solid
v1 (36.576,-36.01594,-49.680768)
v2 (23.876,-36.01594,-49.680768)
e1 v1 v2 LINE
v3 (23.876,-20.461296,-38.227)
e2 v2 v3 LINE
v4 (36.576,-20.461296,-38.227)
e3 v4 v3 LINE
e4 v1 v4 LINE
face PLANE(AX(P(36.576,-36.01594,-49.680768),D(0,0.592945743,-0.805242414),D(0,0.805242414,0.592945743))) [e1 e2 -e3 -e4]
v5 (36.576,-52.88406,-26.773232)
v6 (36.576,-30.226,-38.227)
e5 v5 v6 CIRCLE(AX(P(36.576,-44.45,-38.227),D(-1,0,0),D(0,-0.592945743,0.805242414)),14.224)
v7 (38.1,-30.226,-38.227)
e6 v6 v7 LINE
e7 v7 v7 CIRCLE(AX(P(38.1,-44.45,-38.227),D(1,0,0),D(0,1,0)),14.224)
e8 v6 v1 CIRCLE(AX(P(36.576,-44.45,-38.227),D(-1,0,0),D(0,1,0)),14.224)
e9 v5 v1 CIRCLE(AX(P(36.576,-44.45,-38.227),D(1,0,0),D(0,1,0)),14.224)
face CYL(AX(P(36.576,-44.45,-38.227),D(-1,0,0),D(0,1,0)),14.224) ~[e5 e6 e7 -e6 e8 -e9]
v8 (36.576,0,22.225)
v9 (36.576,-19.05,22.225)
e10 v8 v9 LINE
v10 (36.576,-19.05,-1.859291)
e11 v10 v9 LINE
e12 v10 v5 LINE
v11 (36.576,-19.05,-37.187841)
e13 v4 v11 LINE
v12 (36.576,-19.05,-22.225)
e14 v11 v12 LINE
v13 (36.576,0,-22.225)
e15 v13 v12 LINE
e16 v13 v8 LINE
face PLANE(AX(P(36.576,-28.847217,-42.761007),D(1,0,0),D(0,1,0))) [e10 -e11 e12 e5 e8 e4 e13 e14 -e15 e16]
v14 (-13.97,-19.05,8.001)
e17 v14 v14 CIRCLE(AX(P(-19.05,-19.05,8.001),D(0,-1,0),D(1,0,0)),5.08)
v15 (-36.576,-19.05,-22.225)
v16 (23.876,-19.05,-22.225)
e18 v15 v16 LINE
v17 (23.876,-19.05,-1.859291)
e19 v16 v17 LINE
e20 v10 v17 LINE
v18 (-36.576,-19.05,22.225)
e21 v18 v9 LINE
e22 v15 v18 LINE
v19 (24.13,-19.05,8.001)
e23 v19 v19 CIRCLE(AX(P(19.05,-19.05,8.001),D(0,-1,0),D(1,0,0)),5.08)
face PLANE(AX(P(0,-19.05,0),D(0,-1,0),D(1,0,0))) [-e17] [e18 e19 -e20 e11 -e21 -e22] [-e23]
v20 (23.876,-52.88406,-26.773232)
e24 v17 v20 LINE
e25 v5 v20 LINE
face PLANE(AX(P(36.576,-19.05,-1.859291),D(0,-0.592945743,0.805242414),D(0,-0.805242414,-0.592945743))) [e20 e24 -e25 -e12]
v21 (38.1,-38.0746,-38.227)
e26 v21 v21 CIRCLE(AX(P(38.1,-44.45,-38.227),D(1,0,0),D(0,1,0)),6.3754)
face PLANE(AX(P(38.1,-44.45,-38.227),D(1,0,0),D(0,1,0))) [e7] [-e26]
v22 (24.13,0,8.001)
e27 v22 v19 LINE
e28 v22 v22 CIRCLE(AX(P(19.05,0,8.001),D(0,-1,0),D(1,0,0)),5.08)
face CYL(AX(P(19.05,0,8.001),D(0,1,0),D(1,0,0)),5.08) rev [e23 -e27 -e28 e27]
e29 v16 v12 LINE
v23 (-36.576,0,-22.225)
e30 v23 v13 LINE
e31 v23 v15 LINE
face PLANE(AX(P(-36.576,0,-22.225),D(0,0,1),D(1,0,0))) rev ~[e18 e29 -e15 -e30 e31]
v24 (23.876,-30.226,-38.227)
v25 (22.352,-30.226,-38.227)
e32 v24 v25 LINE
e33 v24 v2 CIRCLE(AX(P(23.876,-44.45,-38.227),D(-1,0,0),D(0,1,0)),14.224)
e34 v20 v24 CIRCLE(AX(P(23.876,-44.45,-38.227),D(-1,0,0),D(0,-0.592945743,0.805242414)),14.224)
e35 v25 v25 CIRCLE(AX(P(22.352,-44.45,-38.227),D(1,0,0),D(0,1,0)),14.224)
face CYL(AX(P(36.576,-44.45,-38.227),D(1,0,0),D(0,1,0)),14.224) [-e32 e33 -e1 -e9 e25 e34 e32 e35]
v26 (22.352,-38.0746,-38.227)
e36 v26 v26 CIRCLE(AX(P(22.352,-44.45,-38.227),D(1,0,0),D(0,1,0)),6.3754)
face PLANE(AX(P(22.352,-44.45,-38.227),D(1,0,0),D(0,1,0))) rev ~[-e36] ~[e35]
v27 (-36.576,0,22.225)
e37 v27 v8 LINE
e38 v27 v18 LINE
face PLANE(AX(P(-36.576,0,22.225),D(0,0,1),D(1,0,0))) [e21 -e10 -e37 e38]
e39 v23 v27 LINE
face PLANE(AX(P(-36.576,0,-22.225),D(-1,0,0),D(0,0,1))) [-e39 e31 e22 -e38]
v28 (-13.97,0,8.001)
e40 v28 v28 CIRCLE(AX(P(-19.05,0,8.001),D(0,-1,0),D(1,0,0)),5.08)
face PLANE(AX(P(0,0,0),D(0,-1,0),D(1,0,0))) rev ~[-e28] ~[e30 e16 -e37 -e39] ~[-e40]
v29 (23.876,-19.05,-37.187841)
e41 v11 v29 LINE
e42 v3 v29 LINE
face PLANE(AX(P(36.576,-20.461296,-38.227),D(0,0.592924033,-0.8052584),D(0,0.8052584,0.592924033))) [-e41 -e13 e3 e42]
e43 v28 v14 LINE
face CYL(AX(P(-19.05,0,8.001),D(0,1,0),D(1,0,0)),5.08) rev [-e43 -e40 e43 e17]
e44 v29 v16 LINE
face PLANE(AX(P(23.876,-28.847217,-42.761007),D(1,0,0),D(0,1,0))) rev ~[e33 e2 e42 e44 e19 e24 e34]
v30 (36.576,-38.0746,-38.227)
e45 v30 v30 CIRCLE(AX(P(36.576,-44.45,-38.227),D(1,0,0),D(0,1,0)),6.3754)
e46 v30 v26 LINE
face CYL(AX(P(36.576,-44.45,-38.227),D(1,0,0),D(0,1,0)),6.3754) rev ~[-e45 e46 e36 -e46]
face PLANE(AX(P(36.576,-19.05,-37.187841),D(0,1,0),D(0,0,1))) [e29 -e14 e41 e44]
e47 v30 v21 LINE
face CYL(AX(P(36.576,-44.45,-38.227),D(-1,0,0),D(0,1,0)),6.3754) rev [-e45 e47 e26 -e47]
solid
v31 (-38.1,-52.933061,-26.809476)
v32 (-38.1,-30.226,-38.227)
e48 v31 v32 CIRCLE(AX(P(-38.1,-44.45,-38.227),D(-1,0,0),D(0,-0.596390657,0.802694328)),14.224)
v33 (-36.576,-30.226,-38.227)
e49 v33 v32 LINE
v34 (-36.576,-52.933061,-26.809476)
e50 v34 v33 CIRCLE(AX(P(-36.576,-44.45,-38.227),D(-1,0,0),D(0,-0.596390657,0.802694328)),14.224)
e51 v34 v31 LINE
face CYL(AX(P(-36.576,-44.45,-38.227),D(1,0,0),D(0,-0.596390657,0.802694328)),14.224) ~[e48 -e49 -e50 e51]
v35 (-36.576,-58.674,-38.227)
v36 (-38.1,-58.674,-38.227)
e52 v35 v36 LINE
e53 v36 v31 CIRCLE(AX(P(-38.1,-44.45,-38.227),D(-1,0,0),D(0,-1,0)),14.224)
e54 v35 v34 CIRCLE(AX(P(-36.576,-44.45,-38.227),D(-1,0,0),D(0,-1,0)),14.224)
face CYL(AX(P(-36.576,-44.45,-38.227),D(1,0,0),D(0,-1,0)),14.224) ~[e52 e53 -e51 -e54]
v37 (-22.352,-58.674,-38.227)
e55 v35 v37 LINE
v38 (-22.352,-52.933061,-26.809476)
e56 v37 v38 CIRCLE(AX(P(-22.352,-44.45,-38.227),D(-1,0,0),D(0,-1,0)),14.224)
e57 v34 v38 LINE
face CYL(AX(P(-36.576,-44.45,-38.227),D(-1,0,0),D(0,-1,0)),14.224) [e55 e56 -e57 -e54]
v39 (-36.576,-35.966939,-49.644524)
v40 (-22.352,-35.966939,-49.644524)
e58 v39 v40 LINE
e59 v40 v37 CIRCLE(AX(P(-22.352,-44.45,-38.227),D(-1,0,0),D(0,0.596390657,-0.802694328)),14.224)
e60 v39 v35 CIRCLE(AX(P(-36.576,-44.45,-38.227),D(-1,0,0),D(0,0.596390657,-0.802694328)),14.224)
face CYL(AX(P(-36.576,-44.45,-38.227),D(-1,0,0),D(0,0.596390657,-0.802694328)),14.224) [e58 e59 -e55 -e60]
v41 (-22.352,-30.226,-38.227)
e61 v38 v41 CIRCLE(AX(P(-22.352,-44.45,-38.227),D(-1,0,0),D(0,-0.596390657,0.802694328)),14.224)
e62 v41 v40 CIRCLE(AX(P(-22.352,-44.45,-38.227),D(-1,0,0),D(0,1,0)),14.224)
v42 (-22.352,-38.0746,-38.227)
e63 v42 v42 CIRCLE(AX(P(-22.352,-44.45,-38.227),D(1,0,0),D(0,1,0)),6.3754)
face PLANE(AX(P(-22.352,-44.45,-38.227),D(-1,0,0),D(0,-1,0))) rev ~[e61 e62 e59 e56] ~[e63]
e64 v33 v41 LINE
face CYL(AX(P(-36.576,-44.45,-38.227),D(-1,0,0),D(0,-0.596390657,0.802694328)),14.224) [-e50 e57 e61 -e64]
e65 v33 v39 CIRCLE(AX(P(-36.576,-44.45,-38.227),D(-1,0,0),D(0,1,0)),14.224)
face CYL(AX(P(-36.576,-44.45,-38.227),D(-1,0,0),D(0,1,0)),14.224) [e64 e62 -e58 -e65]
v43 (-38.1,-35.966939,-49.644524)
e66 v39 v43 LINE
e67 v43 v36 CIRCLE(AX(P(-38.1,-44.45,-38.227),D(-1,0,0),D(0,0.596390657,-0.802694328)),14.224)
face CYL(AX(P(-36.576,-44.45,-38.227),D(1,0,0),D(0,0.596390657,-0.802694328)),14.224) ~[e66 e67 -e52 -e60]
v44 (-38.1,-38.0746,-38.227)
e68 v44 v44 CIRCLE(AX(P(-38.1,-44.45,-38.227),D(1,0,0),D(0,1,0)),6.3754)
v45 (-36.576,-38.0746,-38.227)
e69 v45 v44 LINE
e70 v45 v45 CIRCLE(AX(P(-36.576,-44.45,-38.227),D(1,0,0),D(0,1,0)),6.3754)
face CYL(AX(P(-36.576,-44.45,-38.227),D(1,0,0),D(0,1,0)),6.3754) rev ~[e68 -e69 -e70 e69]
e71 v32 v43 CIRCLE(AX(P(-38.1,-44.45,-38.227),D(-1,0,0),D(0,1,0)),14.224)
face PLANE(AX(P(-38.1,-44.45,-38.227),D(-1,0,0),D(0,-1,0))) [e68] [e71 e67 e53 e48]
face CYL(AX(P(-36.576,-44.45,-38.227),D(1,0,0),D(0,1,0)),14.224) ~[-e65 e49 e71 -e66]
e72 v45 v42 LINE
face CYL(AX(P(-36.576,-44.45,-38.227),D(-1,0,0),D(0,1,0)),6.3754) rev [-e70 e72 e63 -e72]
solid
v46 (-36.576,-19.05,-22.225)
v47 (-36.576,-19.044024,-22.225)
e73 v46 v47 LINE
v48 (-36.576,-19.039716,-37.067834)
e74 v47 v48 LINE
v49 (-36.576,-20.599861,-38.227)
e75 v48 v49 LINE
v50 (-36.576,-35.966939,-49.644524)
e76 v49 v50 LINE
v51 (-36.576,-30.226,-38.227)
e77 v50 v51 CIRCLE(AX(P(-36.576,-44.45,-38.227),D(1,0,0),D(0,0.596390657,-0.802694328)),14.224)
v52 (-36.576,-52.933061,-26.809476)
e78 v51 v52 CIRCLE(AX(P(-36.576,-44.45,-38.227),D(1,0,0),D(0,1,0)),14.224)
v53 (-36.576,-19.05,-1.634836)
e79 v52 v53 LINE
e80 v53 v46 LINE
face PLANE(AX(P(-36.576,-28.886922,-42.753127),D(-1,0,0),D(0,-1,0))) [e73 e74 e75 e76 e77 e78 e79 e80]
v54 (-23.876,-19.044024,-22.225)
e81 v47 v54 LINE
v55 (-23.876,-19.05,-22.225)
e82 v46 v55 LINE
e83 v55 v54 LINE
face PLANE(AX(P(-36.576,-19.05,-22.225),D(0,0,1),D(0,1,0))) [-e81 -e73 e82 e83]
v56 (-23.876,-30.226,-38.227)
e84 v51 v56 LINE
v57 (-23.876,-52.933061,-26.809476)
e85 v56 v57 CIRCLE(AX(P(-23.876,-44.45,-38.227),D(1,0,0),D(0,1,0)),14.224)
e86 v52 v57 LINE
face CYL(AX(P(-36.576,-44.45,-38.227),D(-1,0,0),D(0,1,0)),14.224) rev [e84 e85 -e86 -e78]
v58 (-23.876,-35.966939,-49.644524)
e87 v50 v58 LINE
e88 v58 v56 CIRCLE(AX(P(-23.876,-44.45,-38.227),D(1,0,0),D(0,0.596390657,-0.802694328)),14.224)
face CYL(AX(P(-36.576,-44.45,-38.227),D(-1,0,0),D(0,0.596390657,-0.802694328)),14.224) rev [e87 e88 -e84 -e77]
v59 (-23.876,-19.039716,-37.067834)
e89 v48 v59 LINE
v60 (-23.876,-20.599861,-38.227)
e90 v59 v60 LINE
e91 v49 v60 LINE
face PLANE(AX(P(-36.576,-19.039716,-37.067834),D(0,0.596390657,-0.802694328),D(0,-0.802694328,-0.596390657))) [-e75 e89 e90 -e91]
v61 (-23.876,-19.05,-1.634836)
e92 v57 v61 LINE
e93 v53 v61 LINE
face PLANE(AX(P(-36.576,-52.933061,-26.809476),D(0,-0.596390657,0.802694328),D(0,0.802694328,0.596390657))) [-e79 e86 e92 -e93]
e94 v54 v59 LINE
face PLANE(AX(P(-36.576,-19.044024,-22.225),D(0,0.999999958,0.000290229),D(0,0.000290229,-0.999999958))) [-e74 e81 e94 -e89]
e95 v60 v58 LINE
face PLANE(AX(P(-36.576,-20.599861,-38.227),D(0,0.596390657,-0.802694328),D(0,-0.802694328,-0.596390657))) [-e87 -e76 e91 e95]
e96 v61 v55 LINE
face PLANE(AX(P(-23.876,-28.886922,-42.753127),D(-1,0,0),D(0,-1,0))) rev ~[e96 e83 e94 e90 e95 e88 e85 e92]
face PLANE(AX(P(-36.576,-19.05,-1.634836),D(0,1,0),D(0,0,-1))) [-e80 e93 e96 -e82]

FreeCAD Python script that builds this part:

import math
import FreeCAD as App
import Part
import Sketcher
Q = App.Units.Quantity


def add_polygon(sketch, points):
    """Adds a closed chain of lines whose ends are joined by coincident constraints."""
    first, n = sketch.GeometryCount, len(points)
    for a, b in zip(points, points[1:] + points[:1]):
        sketch.addGeometry(Part.LineSegment(App.Vector(*a, 0), App.Vector(*b, 0)), False)
    for i in range(n):
        sketch.addConstraint(Sketcher.Constraint("Coincident", first + i, 2, first + (i + 1) % n, 1))

doc = App.newDocument("Part")
body = doc.addObject("PartDesign::Body", "Body")

# Sketch on XZ plane
sketch1 = body.newObject("Sketcher::SketchObject", "Sketch")
sketch1.AttachmentSupport = (doc.getObject("XZ_Plane"), [""])
sketch1.MapMode = "FlatFace"
add_polygon(sketch1, [(-37, 22), (-37, -22), (37, -22), (37, 22)])  # lines 0-3
sketch1.addGeometry(Part.Circle(App.Vector(-19, 8, 0), App.Vector(0, 0, 1), 5), False)  # 4
sketch1.addGeometry(Part.Circle(App.Vector(19, 8, 0), App.Vector(0, 0, 1), 5), False)  # 5
sketch1.addConstraint(Sketcher.Constraint("Vertical", 0))
sketch1.addConstraint(Sketcher.Constraint("Horizontal", 1))
sketch1.addConstraint(Sketcher.Constraint("Vertical", 2))
sketch1.addConstraint(Sketcher.Constraint("Horizontal", 3))
sketch1.addConstraint(Sketcher.Constraint("Equal", 4, 5))
sketch1.addConstraint(Sketcher.Constraint("Symmetric", 0, 2, 2, 2, -1, 1))
sketch1.addConstraint(Sketcher.Constraint("Symmetric", 4, 3, 5, 3, -2))
sketch1.addConstraint(Sketcher.Constraint("Diameter", 4, Q("0.4 in")))
sketch1.addConstraint(Sketcher.Constraint("DistanceX", 1, 1, 1, 2, Q("2.88 in")))
sketch1.addConstraint(Sketcher.Constraint("DistanceY", 0, 2, 0, 1, Q("1.75 in")))
sketch1.addConstraint(Sketcher.Constraint("DistanceX", 4, 3, 5, 3, Q("1.5 in")))
sketch1.addConstraint(Sketcher.Constraint("DistanceY", 0, 2, 4, 3, Q("1.19 in")))
pad1 = body.newObject("PartDesign::Pad", "Pad")
pad1.Profile = sketch1
pad1.Length = Q("0.75 in")

# Sketch on YZ plane
sketch2 = body.newObject("Sketcher::SketchObject", "Sketch001")
sketch2.AttachmentSupport = (doc.getObject("YZ_Plane"), [""])
sketch2.MapMode = "FlatFace"
sketch2.AttachmentOffset = App.Placement(App.Vector(0, 0, 1.44 * 25.4), App.Rotation())
sketch2.addGeometry(Part.LineSegment(App.Vector(-36, -49.7, 0), App.Vector(-20.5, -38.2, 0)), False)
sketch2.addGeometry(Part.LineSegment(App.Vector(-20.5, -38.2, 0), App.Vector(-19.1, -37.2, 0)), False)
sketch2.addGeometry(Part.LineSegment(App.Vector(-19.1, -37.2, 0), App.Vector(-19.1, -1.9, 0)), False)
sketch2.addGeometry(Part.LineSegment(App.Vector(-19.1, -1.9, 0), App.Vector(-52.9, -26.8, 0)), False)
sketch2.addGeometry(Part.ArcOfCircle(Part.Circle(App.Vector(-44.5, -38.2, 0), App.Vector(0, 0, 1), 14.2), math.radians(0), math.radians(126)), False)
sketch2.addGeometry(Part.ArcOfCircle(Part.Circle(App.Vector(-44.5, -38.2, 0), App.Vector(0, 0, 1), 14.2), math.radians(-54), math.radians(0)), False)
sketch2.addConstraint(Sketcher.Constraint("Coincident", 0, 2, 1, 1))
sketch2.addConstraint(Sketcher.Constraint("Coincident", 1, 2, 2, 1))
sketch2.addConstraint(Sketcher.Constraint("Coincident", 2, 2, 3, 1))
sketch2.addConstraint(Sketcher.Constraint("Tangent", 3, 2, 4, 2))
sketch2.addConstraint(Sketcher.Constraint("Tangent", 4, 1, 5, 2))
sketch2.addConstraint(Sketcher.Constraint("Tangent", 5, 1, 0, 1))
sketch2.addConstraint(Sketcher.Constraint("Vertical", 2))
sketch2.addConstraint(Sketcher.Constraint("Equal", 4, 5))
sketch2.addConstraint(Sketcher.Constraint("Parallel", 0, 3))
sketch2.addConstraint(Sketcher.Constraint("Horizontal", 5, 3, 0, 2))
sketch2.addConstraint(Sketcher.Constraint("Horizontal", 0, 2, 4, 1))
sketch2.addConstraint(Sketcher.Constraint("Radius", 4, Q("0.56 in")))
sketch2.addConstraint(Sketcher.Constraint("DistanceX", 4, 3, 1, 2, Q("1 in")))
sketch2.addConstraint(Sketcher.Constraint("DistanceX", 4, 3, -1, 1, Q("1.75 in")))
sketch2.addConstraint(Sketcher.Constraint("Distance", 1, Q("0.069 in")))
sketch2.addConstraint(Sketcher.Constraint("DistanceY", 4, 3, -1, 1, Q("1.505 in")))
sketch2.addConstraint(Sketcher.Constraint("DistanceY", 2, 1, 2, 2, Q("35.32855 mm")))
pad2 = body.newObject("PartDesign::Pad", "Pad001")
pad2.Profile = sketch2
pad2.Length = Q("0.5 in")
pad2.Reversed = True

# Sketch on YZ plane
sketch3 = body.newObject("Sketcher::SketchObject", "Sketch002")
sketch3.AttachmentSupport = (doc.getObject("YZ_Plane"), [""])
sketch3.MapMode = "FlatFace"
sketch3.AttachmentOffset = App.Placement(App.Vector(0, 0, 1.44 * 25.4), App.Rotation())
sketch3.addGeometry(Part.Circle(App.Vector(-44, -38, 0), App.Vector(0, 0, 1), 14), False)
sketch3.addGeometry(Part.Circle(App.Vector(-44, -38, 0), App.Vector(0, 0, 1), 6), False)
sketch3.addConstraint(Sketcher.Constraint("Coincident", 1, 3, 0, 3))
sketch3.addConstraint(Sketcher.Constraint("Diameter", 0, Q("1.12 in")))
sketch3.addConstraint(Sketcher.Constraint("Diameter", 1, Q("0.502 in")))
sketch3.addConstraint(Sketcher.Constraint("DistanceX", 0, 3, -1, 1, Q("1.75 in")))
sketch3.addConstraint(Sketcher.Constraint("DistanceY", 0, 3, -1, 1, Q("1.505 in")))
pad3 = body.newObject("PartDesign::Pad", "Pad002")
pad3.Profile = sketch3
pad3.Type = "TwoLengths"
pad3.Length = Q("0.06 in")
pad3.Length2 = Q("0.56 in")
body2 = doc.addObject("PartDesign::Body", "Body001")

# Sketch on YZ plane
sketch4 = body2.newObject("Sketcher::SketchObject", "Sketch003")
sketch4.AttachmentSupport = (doc.getObject("YZ_Plane001"), [""])
sketch4.MapMode = "FlatFace"
sketch4.AttachmentOffset = App.Placement(App.Vector(0, 0, -1.44 * 25.4), App.Rotation())
sketch4.addGeometry(Part.LineSegment(App.Vector(-20.6, -38.227, 0), App.Vector(-35.967, -49.645, 0)), False)
sketch4.addGeometry(Part.ArcOfCircle(Part.Circle(App.Vector(-44.45, -38.227, 0), App.Vector(0, 0, 1), 14.224), math.radians(-53), math.radians(0)), False)
sketch4.addGeometry(Part.ArcOfCircle(Part.Circle(App.Vector(-44.45, -38.227, 0), App.Vector(0, 0, 1), 14.224), math.radians(0), math.radians(127)), False)
sketch4.addGeometry(Part.LineSegment(App.Vector(-52.933, -26.809, 0), App.Vector(-19.05, -1.635, 0)), False)
sketch4.addGeometry(Part.LineSegment(App.Vector(-19.05, -1.635, 0), App.Vector(-19.05, -22.225, 0)), False)
sketch4.addGeometry(Part.LineSegment(App.Vector(-19.05, -22.225, 0), App.Vector(-19.044, -22.225, 0)), False)
sketch4.addGeometry(Part.LineSegment(App.Vector(-19.044, -22.225, 0), App.Vector(-19.04, -37.068, 0)), False)
sketch4.addGeometry(Part.LineSegment(App.Vector(-19.04, -37.068, 0), App.Vector(-20.6, -38.227, 0)), False)
sketch4.addConstraint(Sketcher.Constraint("Tangent", 0, 2, 1, 1))
sketch4.addConstraint(Sketcher.Constraint("Tangent", 1, 2, 2, 1))
sketch4.addConstraint(Sketcher.Constraint("Tangent", 2, 2, 3, 1))
sketch4.addConstraint(Sketcher.Constraint("Coincident", 3, 2, 4, 1))
sketch4.addConstraint(Sketcher.Constraint("Coincident", 4, 2, 5, 1))
sketch4.addConstraint(Sketcher.Constraint("Coincident", 5, 2, 6, 1))
sketch4.addConstraint(Sketcher.Constraint("Coincident", 6, 2, 7, 1))
sketch4.addConstraint(Sketcher.Constraint("Coincident", 7, 2, 0, 1))
sketch4.addConstraint(Sketcher.Constraint("Vertical", 4))
sketch4.addConstraint(Sketcher.Constraint("Horizontal", 5))
sketch4.addConstraint(Sketcher.Constraint("Equal", 1, 2))
sketch4.addConstraint(Sketcher.Constraint("Parallel", 0, 3))
sketch4.addConstraint(Sketcher.Constraint("Parallel", 3, 7))
sketch4.addConstraint(Sketcher.Constraint("Horizontal", 2, 3, 1, 2))
sketch4.addConstraint(Sketcher.Constraint("Horizontal", 1, 2, 7, 2))
sketch4.addConstraint(Sketcher.Constraint("Radius", 1, Q("0.56 in")))
sketch4.addConstraint(Sketcher.Constraint("DistanceX", 1, 3, 3, 2, Q("1 in")))
sketch4.addConstraint(Sketcher.Constraint("DistanceX", 1, 3, -1, 1, Q("1.75 in")))
sketch4.addConstraint(Sketcher.Constraint("DistanceY", 1, 2, 4, 2, Q("0.63 in")))
sketch4.addConstraint(Sketcher.Constraint("DistanceY", 1, 3, -1, 1, Q("1.505 in")))
sketch4.addConstraint(Sketcher.Constraint("Distance", 0, Q("19.144371 mm")))
sketch4.addConstraint(Sketcher.Constraint("DistanceX", 5, 1, 5, 2, Q("0.005976 mm")))
sketch4.addConstraint(Sketcher.Constraint("DistanceY", 0, 2, 6, 2, Q("12.57669 mm")))
pad4 = body2.newObject("PartDesign::Pad", "Pad003")
pad4.Profile = sketch4
pad4.Length = Q("0.5 in")
body3 = doc.addObject("PartDesign::Body", "Body002")

# Sketch on YZ plane
sketch5 = body3.newObject("Sketcher::SketchObject", "Sketch004")
sketch5.AttachmentSupport = (doc.getObject("YZ_Plane002"), [""])
sketch5.MapMode = "FlatFace"
sketch5.AttachmentOffset = App.Placement(App.Vector(0, 0, -1.44 * 25.4), App.Rotation())
sketch5.addGeometry(Part.ArcOfCircle(Part.Circle(App.Vector(-44, -38, 0), App.Vector(0, 0, 1), 14), math.radians(127), math.radians(180)), False)
sketch5.addGeometry(Part.ArcOfCircle(Part.Circle(App.Vector(-44, -38, 0), App.Vector(0, 0, 1), 14), math.radians(0), math.radians(127)), False)
sketch5.addGeometry(Part.ArcOfCircle(Part.Circle(App.Vector(-44, -38, 0), App.Vector(0, 0, 1), 14), math.radians(-53), math.radians(0)), False)
sketch5.addGeometry(Part.ArcOfCircle(Part.Circle(App.Vector(-44, -38, 0), App.Vector(0, 0, 1), 14), math.radians(180), math.radians(307)), False)
sketch5.addGeometry(Part.Circle(App.Vector(-44, -38, 0), App.Vector(0, 0, 1), 6), False)
sketch5.addConstraint(Sketcher.Constraint("Tangent", 0, 1, 1, 2))
sketch5.addConstraint(Sketcher.Constraint("Tangent", 1, 1, 2, 2))
sketch5.addConstraint(Sketcher.Constraint("Tangent", 2, 1, 3, 2))
sketch5.addConstraint(Sketcher.Constraint("Tangent", 3, 1, 0, 2))
sketch5.addConstraint(Sketcher.Constraint("Coincident", 4, 3, 0, 3))
sketch5.addConstraint(Sketcher.Constraint("Equal", 0, 1))
sketch5.addConstraint(Sketcher.Constraint("Horizontal", 4, 3, 1, 1))
sketch5.addConstraint(Sketcher.Constraint("Horizontal", 1, 1, 3, 1))
sketch5.addConstraint(Sketcher.Constraint("Radius", 0, Q("0.56 in")))
sketch5.addConstraint(Sketcher.Constraint("Diameter", 4, Q("0.502 in")))
sketch5.addConstraint(Sketcher.Constraint("DistanceX", 0, 3, -1, 1, Q("1.75 in")))
sketch5.addConstraint(Sketcher.Constraint("DistanceY", 0, 3, -1, 1, Q("1.505 in")))
sketch5.addConstraint(Sketcher.Constraint("DistanceX", 0, 1, -1, 1, Q("52.933061 mm")))
sketch5.addConstraint(Sketcher.Constraint("DistanceX", 2, 1, -1, 1, Q("35.966939 mm")))
pad5 = body3.newObject("PartDesign::Pad", "Pad004")
pad5.Profile = sketch5
pad5.Type = "TwoLengths"
pad5.Length = Q("0.06 in")
pad5.Length2 = Q("0.56 in")
pad5.Reversed = True

doc.recompute()
